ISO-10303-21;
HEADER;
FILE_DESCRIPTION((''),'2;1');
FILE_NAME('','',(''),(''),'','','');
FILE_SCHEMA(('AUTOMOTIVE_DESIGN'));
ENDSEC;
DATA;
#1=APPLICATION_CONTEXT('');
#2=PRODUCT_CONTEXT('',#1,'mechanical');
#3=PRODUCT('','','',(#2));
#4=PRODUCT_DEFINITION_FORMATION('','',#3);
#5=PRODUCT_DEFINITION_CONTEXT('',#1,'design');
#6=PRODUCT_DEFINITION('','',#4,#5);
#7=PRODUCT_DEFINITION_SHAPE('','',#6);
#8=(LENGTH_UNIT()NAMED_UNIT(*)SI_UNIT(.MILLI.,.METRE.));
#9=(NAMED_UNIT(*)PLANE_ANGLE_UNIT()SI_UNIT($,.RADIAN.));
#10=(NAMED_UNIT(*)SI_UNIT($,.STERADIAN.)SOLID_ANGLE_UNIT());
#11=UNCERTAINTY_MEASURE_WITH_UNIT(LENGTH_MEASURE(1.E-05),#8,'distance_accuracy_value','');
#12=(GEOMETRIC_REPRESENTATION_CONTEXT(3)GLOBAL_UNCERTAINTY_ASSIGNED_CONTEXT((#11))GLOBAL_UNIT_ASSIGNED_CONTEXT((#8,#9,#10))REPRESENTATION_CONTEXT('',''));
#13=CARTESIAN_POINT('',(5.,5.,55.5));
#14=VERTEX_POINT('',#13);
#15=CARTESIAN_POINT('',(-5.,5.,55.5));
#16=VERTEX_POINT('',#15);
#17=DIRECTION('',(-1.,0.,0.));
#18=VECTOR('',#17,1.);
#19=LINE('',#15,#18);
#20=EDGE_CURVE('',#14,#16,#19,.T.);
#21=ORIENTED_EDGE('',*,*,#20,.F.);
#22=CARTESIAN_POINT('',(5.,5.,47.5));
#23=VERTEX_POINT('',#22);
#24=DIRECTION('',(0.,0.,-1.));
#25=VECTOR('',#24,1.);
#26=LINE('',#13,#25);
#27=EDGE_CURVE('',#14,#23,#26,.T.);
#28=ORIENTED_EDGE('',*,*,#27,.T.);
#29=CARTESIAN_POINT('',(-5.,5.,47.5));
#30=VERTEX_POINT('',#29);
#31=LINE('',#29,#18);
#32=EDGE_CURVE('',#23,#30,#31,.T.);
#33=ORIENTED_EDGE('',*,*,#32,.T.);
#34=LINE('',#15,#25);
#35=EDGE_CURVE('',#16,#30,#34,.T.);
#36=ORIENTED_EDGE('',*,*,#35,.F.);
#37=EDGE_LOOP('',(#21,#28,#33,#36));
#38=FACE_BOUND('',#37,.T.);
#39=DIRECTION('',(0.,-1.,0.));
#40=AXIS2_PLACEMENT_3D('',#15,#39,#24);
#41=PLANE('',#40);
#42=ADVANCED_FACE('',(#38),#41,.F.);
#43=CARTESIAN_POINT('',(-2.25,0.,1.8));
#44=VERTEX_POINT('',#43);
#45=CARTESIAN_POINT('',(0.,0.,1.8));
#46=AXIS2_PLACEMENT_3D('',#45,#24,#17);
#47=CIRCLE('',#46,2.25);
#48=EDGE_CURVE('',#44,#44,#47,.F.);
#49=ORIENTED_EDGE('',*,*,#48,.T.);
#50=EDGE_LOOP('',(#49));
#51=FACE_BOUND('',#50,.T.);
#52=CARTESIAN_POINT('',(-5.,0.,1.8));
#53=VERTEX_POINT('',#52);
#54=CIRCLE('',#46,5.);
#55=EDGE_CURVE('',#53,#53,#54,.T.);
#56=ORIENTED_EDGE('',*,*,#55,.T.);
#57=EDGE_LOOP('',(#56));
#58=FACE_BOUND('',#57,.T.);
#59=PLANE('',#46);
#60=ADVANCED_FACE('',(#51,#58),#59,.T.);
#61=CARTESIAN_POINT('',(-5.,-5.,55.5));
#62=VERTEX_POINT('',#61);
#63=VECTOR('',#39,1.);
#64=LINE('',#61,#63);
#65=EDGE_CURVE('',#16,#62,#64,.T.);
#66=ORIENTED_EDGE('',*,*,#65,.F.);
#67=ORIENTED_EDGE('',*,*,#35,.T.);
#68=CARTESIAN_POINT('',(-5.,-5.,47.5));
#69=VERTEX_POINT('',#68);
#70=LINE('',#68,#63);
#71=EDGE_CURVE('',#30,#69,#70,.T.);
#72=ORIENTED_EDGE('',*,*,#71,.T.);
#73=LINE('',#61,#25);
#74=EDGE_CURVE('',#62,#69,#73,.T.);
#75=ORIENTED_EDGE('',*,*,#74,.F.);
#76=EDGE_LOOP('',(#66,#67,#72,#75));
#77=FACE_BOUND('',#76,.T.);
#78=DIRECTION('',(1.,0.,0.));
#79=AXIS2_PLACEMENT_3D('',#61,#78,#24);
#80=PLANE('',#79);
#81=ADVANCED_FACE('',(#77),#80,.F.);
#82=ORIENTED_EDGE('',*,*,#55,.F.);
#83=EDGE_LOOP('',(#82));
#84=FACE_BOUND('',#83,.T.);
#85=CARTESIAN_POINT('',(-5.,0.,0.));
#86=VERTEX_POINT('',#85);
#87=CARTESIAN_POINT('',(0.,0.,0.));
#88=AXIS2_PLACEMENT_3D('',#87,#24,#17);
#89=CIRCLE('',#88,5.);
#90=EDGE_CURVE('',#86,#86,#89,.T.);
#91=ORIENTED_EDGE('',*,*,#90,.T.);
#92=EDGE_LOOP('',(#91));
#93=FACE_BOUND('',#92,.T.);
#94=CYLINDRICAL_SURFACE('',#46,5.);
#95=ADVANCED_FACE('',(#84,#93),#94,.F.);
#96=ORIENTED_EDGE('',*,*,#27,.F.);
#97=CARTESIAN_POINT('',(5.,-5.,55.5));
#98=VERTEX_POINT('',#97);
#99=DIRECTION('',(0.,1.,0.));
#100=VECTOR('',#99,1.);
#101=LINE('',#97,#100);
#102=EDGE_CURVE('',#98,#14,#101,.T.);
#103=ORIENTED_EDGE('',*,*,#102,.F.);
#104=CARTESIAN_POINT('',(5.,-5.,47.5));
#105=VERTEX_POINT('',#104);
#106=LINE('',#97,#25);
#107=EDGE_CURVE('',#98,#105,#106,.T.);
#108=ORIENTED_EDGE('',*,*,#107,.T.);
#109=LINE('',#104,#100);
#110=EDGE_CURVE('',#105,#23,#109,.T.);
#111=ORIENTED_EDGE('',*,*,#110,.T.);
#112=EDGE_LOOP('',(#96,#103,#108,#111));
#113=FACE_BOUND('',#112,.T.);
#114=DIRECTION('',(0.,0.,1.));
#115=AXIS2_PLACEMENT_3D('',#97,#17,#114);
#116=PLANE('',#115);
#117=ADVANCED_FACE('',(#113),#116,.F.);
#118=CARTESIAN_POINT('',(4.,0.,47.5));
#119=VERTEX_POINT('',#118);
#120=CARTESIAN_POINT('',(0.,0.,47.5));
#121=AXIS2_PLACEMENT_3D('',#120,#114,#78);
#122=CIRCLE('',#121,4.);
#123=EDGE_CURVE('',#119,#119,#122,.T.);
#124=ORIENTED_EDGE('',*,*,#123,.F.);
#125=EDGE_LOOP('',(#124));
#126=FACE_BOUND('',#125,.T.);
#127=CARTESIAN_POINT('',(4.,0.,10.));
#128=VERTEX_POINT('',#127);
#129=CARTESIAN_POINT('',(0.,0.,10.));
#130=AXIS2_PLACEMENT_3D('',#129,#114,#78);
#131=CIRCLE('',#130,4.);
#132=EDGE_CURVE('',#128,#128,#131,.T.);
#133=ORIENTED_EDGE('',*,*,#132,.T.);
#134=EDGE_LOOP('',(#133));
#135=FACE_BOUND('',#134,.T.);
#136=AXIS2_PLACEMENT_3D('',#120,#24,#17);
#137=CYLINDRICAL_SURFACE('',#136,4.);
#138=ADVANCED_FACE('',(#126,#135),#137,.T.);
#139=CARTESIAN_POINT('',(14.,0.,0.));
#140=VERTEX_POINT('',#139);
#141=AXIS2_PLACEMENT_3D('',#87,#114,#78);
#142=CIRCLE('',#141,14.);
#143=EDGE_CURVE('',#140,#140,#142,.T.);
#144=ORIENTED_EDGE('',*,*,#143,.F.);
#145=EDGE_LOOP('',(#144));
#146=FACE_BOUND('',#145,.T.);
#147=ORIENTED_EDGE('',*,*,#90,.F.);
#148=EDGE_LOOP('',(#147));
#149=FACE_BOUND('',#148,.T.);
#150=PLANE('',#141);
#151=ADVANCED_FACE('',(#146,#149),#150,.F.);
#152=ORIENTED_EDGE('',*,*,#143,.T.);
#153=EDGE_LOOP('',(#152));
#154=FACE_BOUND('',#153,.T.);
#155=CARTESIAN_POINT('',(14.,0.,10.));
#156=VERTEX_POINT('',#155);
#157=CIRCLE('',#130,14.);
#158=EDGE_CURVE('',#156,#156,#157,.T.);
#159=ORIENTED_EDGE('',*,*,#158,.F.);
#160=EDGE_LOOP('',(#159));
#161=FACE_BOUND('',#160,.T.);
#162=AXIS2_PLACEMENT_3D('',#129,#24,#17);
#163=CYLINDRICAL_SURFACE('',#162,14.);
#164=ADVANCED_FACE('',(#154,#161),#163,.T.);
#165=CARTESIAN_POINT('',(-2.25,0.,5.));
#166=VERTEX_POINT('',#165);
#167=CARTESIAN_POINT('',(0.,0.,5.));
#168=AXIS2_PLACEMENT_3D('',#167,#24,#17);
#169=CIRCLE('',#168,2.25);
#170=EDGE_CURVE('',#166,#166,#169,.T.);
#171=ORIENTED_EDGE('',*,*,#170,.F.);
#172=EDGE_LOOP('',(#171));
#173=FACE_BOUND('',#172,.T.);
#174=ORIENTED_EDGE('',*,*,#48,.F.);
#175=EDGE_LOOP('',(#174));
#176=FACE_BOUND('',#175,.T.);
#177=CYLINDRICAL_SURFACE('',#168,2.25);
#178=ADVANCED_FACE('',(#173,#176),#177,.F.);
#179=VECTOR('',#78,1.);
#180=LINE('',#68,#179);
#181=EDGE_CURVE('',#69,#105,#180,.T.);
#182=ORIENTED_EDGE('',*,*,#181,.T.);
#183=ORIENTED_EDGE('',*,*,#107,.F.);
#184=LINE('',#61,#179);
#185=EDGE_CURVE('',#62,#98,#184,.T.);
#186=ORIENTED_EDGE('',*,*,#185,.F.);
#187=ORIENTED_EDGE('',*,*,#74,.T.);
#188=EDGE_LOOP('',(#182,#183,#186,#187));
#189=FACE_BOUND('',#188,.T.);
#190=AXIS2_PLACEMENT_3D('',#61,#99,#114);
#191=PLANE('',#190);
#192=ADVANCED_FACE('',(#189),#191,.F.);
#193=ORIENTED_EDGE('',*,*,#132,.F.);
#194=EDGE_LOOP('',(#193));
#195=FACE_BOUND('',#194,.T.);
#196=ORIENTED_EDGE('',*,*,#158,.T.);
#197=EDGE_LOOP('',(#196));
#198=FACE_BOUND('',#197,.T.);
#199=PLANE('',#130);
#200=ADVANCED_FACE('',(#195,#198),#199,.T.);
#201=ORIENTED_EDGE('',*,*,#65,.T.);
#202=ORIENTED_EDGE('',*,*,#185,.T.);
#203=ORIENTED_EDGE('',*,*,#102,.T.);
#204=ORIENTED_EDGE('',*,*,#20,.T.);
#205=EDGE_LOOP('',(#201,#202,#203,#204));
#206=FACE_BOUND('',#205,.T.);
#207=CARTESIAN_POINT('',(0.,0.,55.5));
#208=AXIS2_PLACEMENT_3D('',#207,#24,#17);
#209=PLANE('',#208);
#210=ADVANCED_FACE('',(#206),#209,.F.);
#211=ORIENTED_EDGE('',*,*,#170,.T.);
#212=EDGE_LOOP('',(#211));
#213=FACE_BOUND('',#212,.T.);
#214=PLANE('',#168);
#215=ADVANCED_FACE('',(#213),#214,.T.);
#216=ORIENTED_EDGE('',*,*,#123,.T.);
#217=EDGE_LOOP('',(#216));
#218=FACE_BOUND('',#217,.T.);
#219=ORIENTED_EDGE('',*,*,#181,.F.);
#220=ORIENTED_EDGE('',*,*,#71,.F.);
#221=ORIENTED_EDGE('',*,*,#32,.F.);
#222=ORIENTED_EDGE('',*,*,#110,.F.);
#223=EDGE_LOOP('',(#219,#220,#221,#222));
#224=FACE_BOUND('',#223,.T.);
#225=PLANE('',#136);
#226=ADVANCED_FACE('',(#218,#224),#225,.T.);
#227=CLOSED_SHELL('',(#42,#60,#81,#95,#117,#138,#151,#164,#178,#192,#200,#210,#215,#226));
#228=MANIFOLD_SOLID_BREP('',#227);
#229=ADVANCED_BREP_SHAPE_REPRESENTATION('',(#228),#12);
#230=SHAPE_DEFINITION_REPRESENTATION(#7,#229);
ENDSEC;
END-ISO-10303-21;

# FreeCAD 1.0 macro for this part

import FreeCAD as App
import Part
import Sketcher
from FreeCAD import Vector

doc = App.newDocument("Part")
body = doc.addObject("PartDesign::Body", "Body")

# Sketch on XY plane
sketch1 = body.newObject("Sketcher::SketchObject", "Sketch")
sketch1.AttachmentSupport = (doc.getObject("XY_Plane"), [""])
sketch1.MapMode = "FlatFace"
sketch1.addGeometry(Part.Circle(Vector(0, 0, 0), Vector(0, 0, 1), 14), False)
sketch1.addConstraint(Sketcher.Constraint("Coincident", 0, 3, -1, 1))
sketch1.addConstraint(Sketcher.Constraint("Diameter", 0, 28.0))
pad1 = body.newObject("PartDesign::Pad", "Pad")
pad1.Profile = sketch1
pad1.Length = 10

# Sketch on XY plane
sketch2 = body.newObject("Sketcher::SketchObject", "Sketch001")
sketch2.AttachmentSupport = (doc.getObject("XY_Plane"), [""])
sketch2.MapMode = "FlatFace"
sketch2.addGeometry(Part.Circle(Vector(0, 0, 0), Vector(0, 0, 1), 2.2), False)
sketch2.addConstraint(Sketcher.Constraint("Coincident", 0, 3, -1, 1))
sketch2.addConstraint(Sketcher.Constraint("Diameter", 0, 4.5))
pocket1 = body.newObject("PartDesign::Pocket", "Pocket")
pocket1.Profile = sketch2
pocket1.Length = 5
pocket1.Reversed = True

# Sketch on XY plane
sketch3 = body.newObject("Sketcher::SketchObject", "Sketch002")
sketch3.AttachmentSupport = (doc.getObject("XY_Plane"), [""])
sketch3.MapMode = "FlatFace"
sketch3.addGeometry(Part.Circle(Vector(0, 0, 0), Vector(0, 0, 1), 5), False)
sketch3.addConstraint(Sketcher.Constraint("Coincident", 0, 3, -1, 1))
sketch3.addConstraint(Sketcher.Constraint("Diameter", 0, 10.0))
pocket2 = body.newObject("PartDesign::Pocket", "Pocket001")
pocket2.Profile = sketch3
pocket2.Length = 1.8
pocket2.Reversed = True

# Sketch on XY plane
sketch4 = body.newObject("Sketcher::SketchObject", "Sketch003")
sketch4.AttachmentSupport = (doc.getObject("XY_Plane"), [""])
sketch4.MapMode = "FlatFace"
sketch4.AttachmentOffset = App.Placement(Vector(0, 0, 10), App.Rotation())
sketch4.addGeometry(Part.Circle(Vector(0, 0, 0), Vector(0, 0, 1), 4), False)
sketch4.addConstraint(Sketcher.Constraint("Coincident", 0, 3, -1, 1))
sketch4.addConstraint(Sketcher.Constraint("Diameter", 0, 8.0))
pad2 = body.newObject("PartDesign::Pad", "Pad001")
pad2.Profile = sketch4
pad2.Length = 37.5

# Sketch on XY plane
sketch5 = body.newObject("Sketcher::SketchObject", "Sketch004")
sketch5.AttachmentSupport = (doc.getObject("XY_Plane"), [""])
sketch5.MapMode = "FlatFace"
sketch5.AttachmentOffset = App.Placement(Vector(0, 0, 47.5), App.Rotation())
sketch5.addGeometry(Part.LineSegment(Vector(-5, 5, 0), Vector(-5, -5, 0)), False)
sketch5.addGeometry(Part.LineSegment(Vector(-5, -5, 0), Vector(5, -5, 0)), False)
sketch5.addGeometry(Part.LineSegment(Vector(5, -5, 0), Vector(5, 5, 0)), False)
sketch5.addGeometry(Part.LineSegment(Vector(5, 5, 0), Vector(-5, 5, 0)), False)
sketch5.addConstraint(Sketcher.Constraint("Coincident", 0, 2, 1, 1))
sketch5.addConstraint(Sketcher.Constraint("Coincident", 1, 2, 2, 1))
sketch5.addConstraint(Sketcher.Constraint("Coincident", 2, 2, 3, 1))
sketch5.addConstraint(Sketcher.Constraint("Coincident", 3, 2, 0, 1))
sketch5.addConstraint(Sketcher.Constraint("Vertical", 0))
sketch5.addConstraint(Sketcher.Constraint("Horizontal", 1))
sketch5.addConstraint(Sketcher.Constraint("Vertical", 2))
sketch5.addConstraint(Sketcher.Constraint("Horizontal", 3))
sketch5.addConstraint(Sketcher.Constraint("Symmetric", 0, 2, 2, 2, -1, 1))
sketch5.addConstraint(Sketcher.Constraint("Equal", 3, 0))
sketch5.addConstraint(Sketcher.Constraint("DistanceX", 1, 1, 1, 2, 10.0))
pad3 = body.newObject("PartDesign::Pad", "Pad002")
pad3.Profile = sketch5
pad3.Length = 8

doc.recompute()
